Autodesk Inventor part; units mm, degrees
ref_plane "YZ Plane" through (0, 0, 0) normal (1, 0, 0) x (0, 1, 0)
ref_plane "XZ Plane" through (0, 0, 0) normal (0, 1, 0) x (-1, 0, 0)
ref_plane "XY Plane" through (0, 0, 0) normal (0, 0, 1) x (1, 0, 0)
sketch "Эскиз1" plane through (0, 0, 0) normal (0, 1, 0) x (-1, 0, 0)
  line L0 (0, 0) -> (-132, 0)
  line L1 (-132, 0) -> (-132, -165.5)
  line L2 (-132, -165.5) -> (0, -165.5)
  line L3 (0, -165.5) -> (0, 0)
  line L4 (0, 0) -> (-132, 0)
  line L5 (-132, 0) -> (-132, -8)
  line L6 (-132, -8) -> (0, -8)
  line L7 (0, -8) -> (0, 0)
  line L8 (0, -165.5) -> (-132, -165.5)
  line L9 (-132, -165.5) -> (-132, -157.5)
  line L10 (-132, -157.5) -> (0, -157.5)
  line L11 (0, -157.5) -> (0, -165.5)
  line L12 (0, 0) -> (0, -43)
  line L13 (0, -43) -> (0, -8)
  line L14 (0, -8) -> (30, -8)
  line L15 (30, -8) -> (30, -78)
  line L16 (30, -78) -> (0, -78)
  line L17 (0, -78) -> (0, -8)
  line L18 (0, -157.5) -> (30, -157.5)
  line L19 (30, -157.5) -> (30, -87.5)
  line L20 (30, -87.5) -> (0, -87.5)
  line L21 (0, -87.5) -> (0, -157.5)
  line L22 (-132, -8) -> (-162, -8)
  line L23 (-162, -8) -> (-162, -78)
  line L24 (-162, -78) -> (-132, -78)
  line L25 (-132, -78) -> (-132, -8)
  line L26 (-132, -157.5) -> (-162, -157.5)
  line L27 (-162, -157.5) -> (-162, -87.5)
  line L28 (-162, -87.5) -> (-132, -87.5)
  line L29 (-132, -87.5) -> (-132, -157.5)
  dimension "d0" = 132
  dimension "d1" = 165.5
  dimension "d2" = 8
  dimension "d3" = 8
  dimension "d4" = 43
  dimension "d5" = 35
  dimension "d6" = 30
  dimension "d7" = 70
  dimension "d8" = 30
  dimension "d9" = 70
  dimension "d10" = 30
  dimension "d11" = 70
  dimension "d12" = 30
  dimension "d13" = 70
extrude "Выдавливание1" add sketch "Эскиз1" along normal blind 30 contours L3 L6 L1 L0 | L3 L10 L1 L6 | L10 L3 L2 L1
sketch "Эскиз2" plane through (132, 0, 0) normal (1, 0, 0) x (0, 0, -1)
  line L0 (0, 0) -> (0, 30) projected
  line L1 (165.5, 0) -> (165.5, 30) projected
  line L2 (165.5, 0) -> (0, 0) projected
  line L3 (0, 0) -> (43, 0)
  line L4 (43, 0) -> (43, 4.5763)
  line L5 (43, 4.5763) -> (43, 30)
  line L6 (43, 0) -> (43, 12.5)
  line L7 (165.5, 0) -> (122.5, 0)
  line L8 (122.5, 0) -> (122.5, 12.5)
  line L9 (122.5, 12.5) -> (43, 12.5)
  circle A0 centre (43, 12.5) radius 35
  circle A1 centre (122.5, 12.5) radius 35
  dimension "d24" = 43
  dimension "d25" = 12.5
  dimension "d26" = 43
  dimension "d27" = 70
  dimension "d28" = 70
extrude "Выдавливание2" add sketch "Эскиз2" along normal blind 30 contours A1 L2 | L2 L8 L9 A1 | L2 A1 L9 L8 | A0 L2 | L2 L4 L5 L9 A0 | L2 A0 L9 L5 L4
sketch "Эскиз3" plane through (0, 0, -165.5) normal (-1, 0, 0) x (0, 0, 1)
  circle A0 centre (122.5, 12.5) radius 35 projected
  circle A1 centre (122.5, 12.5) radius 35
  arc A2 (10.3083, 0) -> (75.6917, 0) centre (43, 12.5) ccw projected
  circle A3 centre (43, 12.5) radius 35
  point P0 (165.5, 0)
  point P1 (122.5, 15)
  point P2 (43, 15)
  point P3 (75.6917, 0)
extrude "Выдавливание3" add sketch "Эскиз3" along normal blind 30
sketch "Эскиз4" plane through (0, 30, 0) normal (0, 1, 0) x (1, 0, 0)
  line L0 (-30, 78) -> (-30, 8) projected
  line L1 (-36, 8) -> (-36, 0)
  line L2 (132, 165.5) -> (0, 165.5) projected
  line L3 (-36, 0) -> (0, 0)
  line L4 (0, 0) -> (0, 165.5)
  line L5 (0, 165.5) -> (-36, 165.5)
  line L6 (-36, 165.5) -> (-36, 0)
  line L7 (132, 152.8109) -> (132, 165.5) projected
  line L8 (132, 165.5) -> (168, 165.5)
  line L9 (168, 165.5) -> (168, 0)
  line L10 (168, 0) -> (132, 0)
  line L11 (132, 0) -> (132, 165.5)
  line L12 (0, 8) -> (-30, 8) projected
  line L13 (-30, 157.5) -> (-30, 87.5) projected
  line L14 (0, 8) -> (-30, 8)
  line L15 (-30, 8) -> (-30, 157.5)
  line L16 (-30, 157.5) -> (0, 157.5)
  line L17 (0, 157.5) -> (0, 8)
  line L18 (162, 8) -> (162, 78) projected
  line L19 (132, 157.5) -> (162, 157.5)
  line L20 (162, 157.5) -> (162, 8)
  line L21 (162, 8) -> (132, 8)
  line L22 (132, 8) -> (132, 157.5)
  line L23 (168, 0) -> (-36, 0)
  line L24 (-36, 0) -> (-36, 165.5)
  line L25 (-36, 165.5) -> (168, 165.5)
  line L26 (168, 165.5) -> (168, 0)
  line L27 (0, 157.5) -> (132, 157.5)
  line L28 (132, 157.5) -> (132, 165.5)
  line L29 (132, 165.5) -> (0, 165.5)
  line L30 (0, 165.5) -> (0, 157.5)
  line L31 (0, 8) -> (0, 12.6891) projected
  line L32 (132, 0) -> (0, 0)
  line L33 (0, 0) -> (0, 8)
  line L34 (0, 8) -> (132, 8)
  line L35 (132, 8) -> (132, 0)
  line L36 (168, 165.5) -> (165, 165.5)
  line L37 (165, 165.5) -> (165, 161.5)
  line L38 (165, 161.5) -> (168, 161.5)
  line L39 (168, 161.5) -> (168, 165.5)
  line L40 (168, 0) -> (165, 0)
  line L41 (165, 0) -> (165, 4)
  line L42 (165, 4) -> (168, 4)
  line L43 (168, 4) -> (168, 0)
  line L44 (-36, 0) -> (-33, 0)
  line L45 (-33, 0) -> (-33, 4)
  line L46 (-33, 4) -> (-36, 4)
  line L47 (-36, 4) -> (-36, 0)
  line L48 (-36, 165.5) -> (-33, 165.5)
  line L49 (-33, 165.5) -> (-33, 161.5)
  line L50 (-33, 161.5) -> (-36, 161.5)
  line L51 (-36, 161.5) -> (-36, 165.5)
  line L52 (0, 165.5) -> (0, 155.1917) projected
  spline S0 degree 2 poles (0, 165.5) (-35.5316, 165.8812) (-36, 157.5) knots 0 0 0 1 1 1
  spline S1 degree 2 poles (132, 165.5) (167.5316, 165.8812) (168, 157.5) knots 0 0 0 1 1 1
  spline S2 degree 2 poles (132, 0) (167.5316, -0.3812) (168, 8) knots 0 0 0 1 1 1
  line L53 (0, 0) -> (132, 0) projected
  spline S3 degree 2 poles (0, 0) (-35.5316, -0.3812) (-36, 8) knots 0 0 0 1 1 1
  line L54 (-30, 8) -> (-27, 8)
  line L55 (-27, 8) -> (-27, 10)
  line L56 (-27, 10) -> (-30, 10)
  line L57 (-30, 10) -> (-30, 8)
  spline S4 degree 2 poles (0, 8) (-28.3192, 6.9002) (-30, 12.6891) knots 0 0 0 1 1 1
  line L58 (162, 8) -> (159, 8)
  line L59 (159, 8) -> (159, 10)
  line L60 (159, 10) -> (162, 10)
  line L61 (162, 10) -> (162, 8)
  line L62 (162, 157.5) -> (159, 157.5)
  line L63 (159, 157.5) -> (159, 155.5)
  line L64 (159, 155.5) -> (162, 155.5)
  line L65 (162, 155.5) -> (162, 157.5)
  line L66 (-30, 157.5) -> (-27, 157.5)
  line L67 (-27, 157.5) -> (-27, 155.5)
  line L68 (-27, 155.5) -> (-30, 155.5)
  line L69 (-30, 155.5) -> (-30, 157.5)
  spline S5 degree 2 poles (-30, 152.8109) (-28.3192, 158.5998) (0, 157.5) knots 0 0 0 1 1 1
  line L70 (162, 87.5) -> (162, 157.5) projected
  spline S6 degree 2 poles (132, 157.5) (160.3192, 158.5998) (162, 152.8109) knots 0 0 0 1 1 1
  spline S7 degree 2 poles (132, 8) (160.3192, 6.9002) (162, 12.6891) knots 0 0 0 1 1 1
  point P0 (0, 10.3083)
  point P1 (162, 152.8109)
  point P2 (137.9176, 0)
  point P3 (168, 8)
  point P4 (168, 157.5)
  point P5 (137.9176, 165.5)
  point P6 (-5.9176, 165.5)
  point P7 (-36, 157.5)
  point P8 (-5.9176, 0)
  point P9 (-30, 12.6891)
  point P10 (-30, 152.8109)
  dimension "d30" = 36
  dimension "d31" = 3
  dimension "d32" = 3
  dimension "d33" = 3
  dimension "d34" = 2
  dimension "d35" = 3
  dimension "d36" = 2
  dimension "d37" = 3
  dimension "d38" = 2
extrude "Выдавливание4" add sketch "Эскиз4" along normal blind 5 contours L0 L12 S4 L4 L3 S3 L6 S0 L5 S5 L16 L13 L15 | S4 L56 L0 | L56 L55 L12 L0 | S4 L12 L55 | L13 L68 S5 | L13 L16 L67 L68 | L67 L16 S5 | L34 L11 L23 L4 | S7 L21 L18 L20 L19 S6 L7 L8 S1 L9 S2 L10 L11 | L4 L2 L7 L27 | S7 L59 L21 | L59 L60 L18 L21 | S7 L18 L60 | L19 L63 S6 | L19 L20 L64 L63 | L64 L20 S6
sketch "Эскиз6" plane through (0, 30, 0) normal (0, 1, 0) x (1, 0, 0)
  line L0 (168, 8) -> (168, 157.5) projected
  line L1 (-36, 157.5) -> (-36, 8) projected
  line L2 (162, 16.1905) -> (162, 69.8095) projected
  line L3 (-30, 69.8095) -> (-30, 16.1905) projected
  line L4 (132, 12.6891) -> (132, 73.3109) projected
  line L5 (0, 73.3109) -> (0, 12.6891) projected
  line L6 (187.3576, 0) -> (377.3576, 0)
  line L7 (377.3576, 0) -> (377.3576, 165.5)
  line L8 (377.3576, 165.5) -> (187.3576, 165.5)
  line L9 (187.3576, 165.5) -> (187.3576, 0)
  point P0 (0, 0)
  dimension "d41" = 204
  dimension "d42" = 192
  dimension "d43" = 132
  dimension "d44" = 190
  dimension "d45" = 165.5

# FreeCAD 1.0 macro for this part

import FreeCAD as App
import Part
import Sketcher
Q = App.Units.Quantity

doc = App.newDocument("Part")
params = doc.addObject("Spreadsheet::Sheet", "Params")
for row, (alias, value) in enumerate([
    ("sketch1_width", "132 mm"),
    ("sketch1_height", "165.5 mm"),
    ("pad1_length", "30 mm"),
    ("sketch2_diameter", "70 mm"),
    ("pad2_length", "30 mm"),
    ("sketch3_diameter", "70 mm"),
    ("pad3_length", "30 mm"),
    ("pad4_length", "5 mm"),
], start=1):
    params.set(f"A{row}", alias)
    params.set(f"B{row}", "=" + value)
    params.setAlias(f"B{row}", alias)

body = doc.addObject("PartDesign::Body", "Body")

# Sketch on XZ plane
sketch1 = body.newObject("Sketcher::SketchObject", "Sketch")
sketch1.AttachmentSupport = (doc.getObject("XZ_Plane"), [""])
sketch1.MapMode = "FlatFace"
sketch1.addGeometry([
    Part.LineSegment(App.Vector(0, 0, 0), App.Vector(132, 0, 0)),
    Part.LineSegment(App.Vector(132, 0, 0), App.Vector(132, -166, 0)),
    Part.LineSegment(App.Vector(132, -166, 0), App.Vector(0, -166, 0)),
    Part.LineSegment(App.Vector(0, -166, 0), App.Vector(0, 0, 0)),
], False)
sketch1.addConstraint([
    Sketcher.Constraint("Coincident", 0, 2, 1, 1),
    Sketcher.Constraint("Coincident", 1, 2, 2, 1),
    Sketcher.Constraint("Coincident", 2, 2, 3, 1),
    Sketcher.Constraint("Coincident", 3, 2, 0, 1),
    Sketcher.Constraint("Horizontal", 0),
    Sketcher.Constraint("Vertical", 1),
    Sketcher.Constraint("Horizontal", 2),
    Sketcher.Constraint("Vertical", 3),
    Sketcher.Constraint("Coincident", 3, 2, -1, 1),
    Sketcher.Constraint("DistanceX", 0, 1, 0, 2, Q("132 mm")),
    Sketcher.Constraint("DistanceY", 1, 2, 1, 1, Q("165.5 mm")),
])
sketch1.setExpression("Constraints[9]", "Params.sketch1_width")
sketch1.setExpression("Constraints[10]", "Params.sketch1_height")
pad1 = body.newObject("PartDesign::Pad", "Pad")
pad1.Profile = sketch1
pad1.setExpression("Length", "Params.pad1_length")
pad1.Reversed = True

# Sketch on YZ plane
sketch2 = body.newObject("Sketcher::SketchObject", "Sketch001")
sketch2.AttachmentSupport = (doc.getObject("YZ_Plane"), [""])
sketch2.MapMode = "FlatFace"
sketch2.AttachmentOffset = App.Placement(App.Vector(0, 0, 132), App.Rotation())
sketch2.addGeometry([
    Part.Circle(App.Vector(12, -122, 0), App.Vector(0, 0, 1), 35),
    Part.Circle(App.Vector(12, -43, 0), App.Vector(0, 0, 1), 35),
], False)
sketch2.addConstraint([
    Sketcher.Constraint("Equal", 0, 1),
    Sketcher.Constraint("Vertical", 0, 3, 1, 3),
    Sketcher.Constraint("Diameter", 0, Q("70 mm")),
    Sketcher.Constraint("DistanceY", 1, 3, -1, 1, Q("43 mm")),
    Sketcher.Constraint("DistanceX", -1, 1, 0, 3, Q("12.5 mm")),
    Sketcher.Constraint("DistanceY", 0, 3, -1, 1, Q("122.5 mm")),
])
sketch2.setExpression("Constraints[2]", "Params.sketch2_diameter")
pad2 = body.newObject("PartDesign::Pad", "Pad001")
pad2.Profile = sketch2
pad2.setExpression("Length", "Params.pad2_length")

# Sketch on YZ plane
sketch3 = body.newObject("Sketcher::SketchObject", "Sketch002")
sketch3.AttachmentSupport = (doc.getObject("YZ_Plane"), [""])
sketch3.MapMode = "FlatFace"
sketch3.addGeometry([
    Part.Circle(App.Vector(12, -43, 0), App.Vector(0, 0, 1), 35),
    Part.Circle(App.Vector(12, -122, 0), App.Vector(0, 0, 1), 35),
], False)
sketch3.addConstraint([
    Sketcher.Constraint("Equal", 0, 1),
    Sketcher.Constraint("Vertical", 0, 3, 1, 3),
    Sketcher.Constraint("Diameter", 0, Q("70 mm")),
    Sketcher.Constraint("DistanceY", 0, 3, -1, 1, Q("43 mm")),
    Sketcher.Constraint("DistanceX", -1, 1, 0, 3, Q("12.5 mm")),
    Sketcher.Constraint("DistanceY", 1, 3, -1, 1, Q("122.5 mm")),
])
sketch3.setExpression("Constraints[2]", "Params.sketch3_diameter")
pad3 = body.newObject("PartDesign::Pad", "Pad002")
pad3.Profile = sketch3
pad3.setExpression("Length", "Params.pad3_length")
pad3.Reversed = True

# Sketch on XZ plane
sketch4 = body.newObject("Sketcher::SketchObject", "Sketch003")
sketch4.AttachmentSupport = (doc.getObject("XZ_Plane"), [""])
sketch4.MapMode = "FlatFace"
sketch4.AttachmentOffset = App.Placement(App.Vector(0, 0, -30), App.Rotation())
sketch4.addGeometry([
    Part.LineSegment(App.Vector(-5.917633, 0, 0), App.Vector(137.917633, 0, 0)),  # 0
    Part.BSplineCurve([App.Vector(137.917633, 0, 0), App.Vector(158.495521, -0.241505, 0), App.Vector(165.000001, -3.999998, 0)], [3, 3], [0.087008126, 0.720547857], False, 2, [1, 1, 1], False),  # 1
    Part.BSplineCurve([App.Vector(165.000001, -3.999998, 0), App.Vector(167.869105, -5.657856, 0), App.Vector(168, -8, 0)], [3, 3], [0.720547857, 1], False, 2, [1, 1, 1], False),  # 2
    Part.LineSegment(App.Vector(168, -8, 0), App.Vector(168, -157.5, 0)),  # 3
    Part.BSplineCurve([App.Vector(165.000001, -161.500002, 0), App.Vector(167.869105, -159.842144, 0), App.Vector(168, -157.5, 0)], [3, 3], [0.720547857, 1], False, 2, [1, 1, 1], False),  # 4
    Part.BSplineCurve([App.Vector(137.917633, -165.5, 0), App.Vector(158.495521, -165.258495, 0), App.Vector(165.000001, -161.500002, 0)], [3, 3], [0.087008126, 0.720547857], False, 2, [1, 1, 1], False),  # 5
    Part.LineSegment(App.Vector(137.917633, -165.5, 0), App.Vector(-5.917633, -165.5, 0)),  # 6
    Part.BSplineCurve([App.Vector(-5.917633, -165.5, 0), App.Vector(-26.495521, -165.258495, 0), App.Vector(-33.000001, -161.500002, 0)], [3, 3], [0.087008126, 0.720547857], False, 2, [1, 1, 1], False),  # 7
    Part.BSplineCurve([App.Vector(-33.000001, -161.500002, 0), App.Vector(-35.869105, -159.842144, 0), App.Vector(-36, -157.5, 0)], [3, 3], [0.720547857, 1], False, 2, [1, 1, 1], False),  # 8
    Part.LineSegment(App.Vector(-36, -157.5, 0), App.Vector(-36, -8, 0)),  # 9
    Part.BSplineCurve([App.Vector(-33.000001, -3.999998, 0), App.Vector(-35.869105, -5.657856, 0), App.Vector(-36, -8, 0)], [3, 3], [0.720547857, 1], False, 2, [1, 1, 1], False),  # 10
    Part.BSplineCurve([App.Vector(-5.917633, 0, 0), App.Vector(-26.495521, -0.241505, 0), App.Vector(-33.000001, -3.999998, 0)], [3, 3], [0.087008126, 0.720547857], False, 2, [1, 1, 1], False),  # 11
    Part.LineSegment(App.Vector(-30, -12.6891, 0), App.Vector(-30, -152.8109, 0)),  # 12
    Part.BSplineCurve([App.Vector(-30, -152.8109, 0), App.Vector(-29.532114, -154.422362, 0), App.Vector(-27.000007, -155.500016, 0)], [3, 3], [0, 0.278371037], False, 2, [1, 1, 1], False),  # 13
    Part.BSplineCurve([App.Vector(-27.000007, -155.500016, 0), App.Vector(-23.340409, -157.057525, 0), App.Vector(-15.369009, -157.5, 0)], [3, 3], [0.278371037, 0.680694471], False, 2, [1, 1, 1], False),  # 14
    Part.BSplineCurve([App.Vector(-15.369009, -157.5, 0), App.Vector(-9.042477, -157.851172, 0), App.Vector(0, -157.5, 0)], [3, 3], [0.680694471, 1], False, 2, [1, 1, 1], False),  # 15
    Part.LineSegment(App.Vector(0, -157.5, 0), App.Vector(132, -157.5, 0)),  # 16
    Part.BSplineCurve([App.Vector(132, -157.5, 0), App.Vector(141.042477, -157.851172, 0), App.Vector(147.369009, -157.5, 0)], [3, 3], [0, 0.319305529], False, 2, [1, 1, 1], False),  # 17
    Part.BSplineCurve([App.Vector(147.369009, -157.5, 0), App.Vector(155.340409, -157.057525, 0), App.Vector(159.000007, -155.500016, 0)], [3, 3], [0.319305529, 0.721628963], False, 2, [1, 1, 1], False),  # 18
    Part.BSplineCurve([App.Vector(159.000007, -155.500016, 0), App.Vector(161.532114, -154.422362, 0), App.Vector(162, -152.8109, 0)], [3, 3], [0.721628963, 1], False, 2, [1, 1, 1], False),  # 19
    Part.LineSegment(App.Vector(162, -152.8109, 0), App.Vector(162, -12.6891, 0)),  # 20
    Part.BSplineCurve([App.Vector(159.000007, -9.999984, 0), App.Vector(161.532114, -11.077638, 0), App.Vector(162, -12.6891, 0)], [3, 3], [0.721628963, 1], False, 2, [1, 1, 1], False),  # 21
    Part.BSplineCurve([App.Vector(147.369009, -8, 0), App.Vector(155.340409, -8.442475, 0), App.Vector(159.000007, -9.999984, 0)], [3, 3], [0.319305529, 0.721628963], False, 2, [1, 1, 1], False),  # 22
    Part.BSplineCurve([App.Vector(132, -8, 0), App.Vector(141.042477, -7.648828, 0), App.Vector(147.369009, -8, 0)], [3, 3], [0, 0.319305529], False, 2, [1, 1, 1], False),  # 23
    Part.LineSegment(App.Vector(132, -8, 0), App.Vector(0, -8, 0)),  # 24
    Part.BSplineCurve([App.Vector(0, -8, 0), App.Vector(-9.042477, -7.648828, 0), App.Vector(-15.369009, -8, 0)], [3, 3], [0, 0.319305529], False, 2, [1, 1, 1], False),  # 25
    Part.BSplineCurve([App.Vector(-15.369009, -8, 0), App.Vector(-23.340409, -8.442475, 0), App.Vector(-27.000007, -9.999984, 0)], [3, 3], [0.319305529, 0.721628963], False, 2, [1, 1, 1], False),  # 26
    Part.BSplineCurve([App.Vector(-27.000007, -9.999984, 0), App.Vector(-29.532114, -11.077638, 0), App.Vector(-30, -12.6891, 0)], [3, 3], [0.721628963, 1], False, 2, [1, 1, 1], False),  # 27
], False)
sketch4.addConstraint([
    Sketcher.Constraint("Block", 1),
    Sketcher.Constraint("Block", 2),
    Sketcher.Constraint("Block", 4),
    Sketcher.Constraint("Block", 5),
    Sketcher.Constraint("Block", 7),
    Sketcher.Constraint("Block", 8),
    Sketcher.Constraint("Block", 10),
    Sketcher.Constraint("Block", 11),
    Sketcher.Constraint("Block", 13),
    Sketcher.Constraint("Block", 14),
    Sketcher.Constraint("Block", 15),
    Sketcher.Constraint("Block", 17),
    Sketcher.Constraint("Block", 18),
    Sketcher.Constraint("Block", 19),
    Sketcher.Constraint("Block", 21),
    Sketcher.Constraint("Block", 22),
    Sketcher.Constraint("Block", 23),
    Sketcher.Constraint("Block", 25),
    Sketcher.Constraint("Block", 26),
    Sketcher.Constraint("Block", 27),
    Sketcher.Constraint("Coincident", 0, 2, 1, 1),
    Sketcher.Constraint("Coincident", 2, 2, 3, 1),
    Sketcher.Constraint("Coincident", 3, 2, 4, 2),
    Sketcher.Constraint("Coincident", 5, 1, 6, 1),
    Sketcher.Constraint("Coincident", 6, 2, 7, 1),
    Sketcher.Constraint("Coincident", 8, 2, 9, 1),
    Sketcher.Constraint("Coincident", 9, 2, 10, 2),
    Sketcher.Constraint("Coincident", 11, 1, 0, 1),
    Sketcher.Constraint("Coincident", 12, 2, 13, 1),
    Sketcher.Constraint("Coincident", 15, 2, 16, 1),
    Sketcher.Constraint("Coincident", 16, 2, 17, 1),
    Sketcher.Constraint("Coincident", 19, 2, 20, 1),
    Sketcher.Constraint("Coincident", 20, 2, 21, 2),
    Sketcher.Constraint("Coincident", 23, 1, 24, 1),
    Sketcher.Constraint("Coincident", 24, 2, 25, 1),
    Sketcher.Constraint("Coincident", 27, 2, 12, 1),
])
pad4 = body.newObject("PartDesign::Pad", "Pad003")
pad4.Profile = sketch4
pad4.setExpression("Length", "Params.pad4_length")
pad4.Reversed = True

doc.recompute()
